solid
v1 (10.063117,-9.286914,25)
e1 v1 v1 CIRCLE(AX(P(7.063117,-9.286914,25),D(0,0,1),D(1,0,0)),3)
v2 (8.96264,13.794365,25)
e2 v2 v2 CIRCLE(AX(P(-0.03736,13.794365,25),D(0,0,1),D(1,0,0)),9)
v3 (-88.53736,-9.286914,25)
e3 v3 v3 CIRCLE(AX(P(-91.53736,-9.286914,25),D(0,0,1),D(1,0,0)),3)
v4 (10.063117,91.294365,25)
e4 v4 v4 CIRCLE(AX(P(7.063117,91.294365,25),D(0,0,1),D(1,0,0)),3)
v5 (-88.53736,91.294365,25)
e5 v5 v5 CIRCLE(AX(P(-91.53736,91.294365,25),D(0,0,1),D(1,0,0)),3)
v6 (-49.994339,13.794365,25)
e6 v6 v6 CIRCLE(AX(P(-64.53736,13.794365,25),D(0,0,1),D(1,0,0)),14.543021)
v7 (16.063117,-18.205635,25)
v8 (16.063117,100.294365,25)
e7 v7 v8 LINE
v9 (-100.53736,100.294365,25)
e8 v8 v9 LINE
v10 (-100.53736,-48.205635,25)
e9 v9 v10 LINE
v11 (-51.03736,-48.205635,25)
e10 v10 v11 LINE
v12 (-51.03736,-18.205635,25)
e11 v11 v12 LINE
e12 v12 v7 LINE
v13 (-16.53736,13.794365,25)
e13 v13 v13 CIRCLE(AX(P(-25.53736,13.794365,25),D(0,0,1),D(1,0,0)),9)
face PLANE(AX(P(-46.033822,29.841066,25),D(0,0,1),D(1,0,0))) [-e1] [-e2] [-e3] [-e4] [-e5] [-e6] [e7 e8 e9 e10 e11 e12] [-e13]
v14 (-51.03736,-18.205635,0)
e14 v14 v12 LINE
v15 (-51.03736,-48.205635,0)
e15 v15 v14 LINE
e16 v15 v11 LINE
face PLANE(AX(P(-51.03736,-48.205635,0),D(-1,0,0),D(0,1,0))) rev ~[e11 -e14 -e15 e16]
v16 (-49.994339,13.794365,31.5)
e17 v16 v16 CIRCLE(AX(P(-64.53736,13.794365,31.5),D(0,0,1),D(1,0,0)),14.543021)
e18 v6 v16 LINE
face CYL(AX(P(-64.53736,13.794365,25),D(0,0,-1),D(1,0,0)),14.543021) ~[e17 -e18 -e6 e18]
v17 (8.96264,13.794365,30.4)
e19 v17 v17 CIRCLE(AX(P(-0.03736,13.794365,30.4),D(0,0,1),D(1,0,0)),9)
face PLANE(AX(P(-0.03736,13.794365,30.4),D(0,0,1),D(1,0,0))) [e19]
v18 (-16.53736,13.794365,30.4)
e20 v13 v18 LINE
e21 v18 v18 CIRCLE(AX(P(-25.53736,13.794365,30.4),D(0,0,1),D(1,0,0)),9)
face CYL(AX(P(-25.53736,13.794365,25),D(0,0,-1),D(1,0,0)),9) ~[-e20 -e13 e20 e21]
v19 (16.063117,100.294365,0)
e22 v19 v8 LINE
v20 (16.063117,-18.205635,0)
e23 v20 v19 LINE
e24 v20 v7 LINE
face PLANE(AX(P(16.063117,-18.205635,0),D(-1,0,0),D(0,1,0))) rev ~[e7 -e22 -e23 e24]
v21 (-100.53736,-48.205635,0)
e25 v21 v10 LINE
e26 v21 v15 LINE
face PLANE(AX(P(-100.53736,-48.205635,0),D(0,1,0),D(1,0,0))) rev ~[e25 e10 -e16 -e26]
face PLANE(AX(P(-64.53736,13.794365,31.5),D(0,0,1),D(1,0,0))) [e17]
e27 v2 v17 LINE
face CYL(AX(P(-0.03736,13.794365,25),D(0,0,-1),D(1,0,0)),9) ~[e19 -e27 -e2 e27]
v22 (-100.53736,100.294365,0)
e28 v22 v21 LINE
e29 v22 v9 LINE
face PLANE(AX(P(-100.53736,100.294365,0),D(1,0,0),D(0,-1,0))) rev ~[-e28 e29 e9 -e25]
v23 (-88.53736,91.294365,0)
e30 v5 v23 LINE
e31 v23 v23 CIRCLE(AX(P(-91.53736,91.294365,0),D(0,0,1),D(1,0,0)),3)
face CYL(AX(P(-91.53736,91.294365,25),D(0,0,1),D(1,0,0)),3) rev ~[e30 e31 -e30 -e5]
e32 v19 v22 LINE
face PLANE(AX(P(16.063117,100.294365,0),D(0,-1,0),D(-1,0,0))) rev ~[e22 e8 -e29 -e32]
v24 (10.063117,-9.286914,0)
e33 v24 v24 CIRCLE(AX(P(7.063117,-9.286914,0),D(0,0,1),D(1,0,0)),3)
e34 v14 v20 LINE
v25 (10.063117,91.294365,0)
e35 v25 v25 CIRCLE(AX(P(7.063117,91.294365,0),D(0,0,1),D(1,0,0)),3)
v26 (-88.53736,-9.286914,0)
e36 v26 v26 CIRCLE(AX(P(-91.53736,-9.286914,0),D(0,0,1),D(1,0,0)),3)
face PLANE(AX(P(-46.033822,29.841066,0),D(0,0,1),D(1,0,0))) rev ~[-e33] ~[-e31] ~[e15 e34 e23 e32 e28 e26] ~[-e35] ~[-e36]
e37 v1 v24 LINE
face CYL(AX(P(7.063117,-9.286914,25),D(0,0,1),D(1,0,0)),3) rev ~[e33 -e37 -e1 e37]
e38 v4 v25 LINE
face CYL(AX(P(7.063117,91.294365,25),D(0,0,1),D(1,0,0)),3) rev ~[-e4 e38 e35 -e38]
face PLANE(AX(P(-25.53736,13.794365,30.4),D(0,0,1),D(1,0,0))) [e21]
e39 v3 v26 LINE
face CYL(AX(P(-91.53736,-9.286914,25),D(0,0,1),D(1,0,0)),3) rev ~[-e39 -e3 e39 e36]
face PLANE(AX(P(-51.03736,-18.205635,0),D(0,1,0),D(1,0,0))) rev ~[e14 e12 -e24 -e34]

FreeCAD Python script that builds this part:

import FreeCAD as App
import Part
import Sketcher

doc = App.newDocument("Part")
body = doc.addObject("PartDesign::Body", "Body")

sketch1 = body.newObject("Sketcher::SketchObject", "Sketch")
sketch1.AttachmentSupport = (doc.getObject("XY_Plane"), [""])
sketch1.MapMode = "FlatFace"
sketch1.addGeometry([
    Part.LineSegment(App.Vector(16.063117, -18.205635, 0), App.Vector(16.063117, 100.294365, 0)),
    Part.LineSegment(App.Vector(16.063117, 100.294365, 0), App.Vector(-100.53736, 100.294365, 0)),
    Part.LineSegment(App.Vector(-100.53736, 100.294365, 0), App.Vector(-100.53736, -48.205635, 0)),
    Part.LineSegment(App.Vector(-100.53736, -48.205635, 0), App.Vector(-51.03736, -48.205635, 0)),
    Part.LineSegment(App.Vector(-51.03736, -48.205635, 0), App.Vector(-51.03736, -18.205635, 0)),
    Part.LineSegment(App.Vector(-51.03736, -18.205635, 0), App.Vector(16.063117, -18.205635, 0)),
], False)
sketch1.addConstraint([
    Sketcher.Constraint("Coincident", 0, 2, 1, 1),
    Sketcher.Constraint("Coincident", 1, 2, 2, 1),
    Sketcher.Constraint("Coincident", 2, 2, 3, 1),
    Sketcher.Constraint("Coincident", 3, 2, 4, 1),
    Sketcher.Constraint("Coincident", 4, 2, 5, 1),
    Sketcher.Constraint("Coincident", 5, 2, 0, 1),
    Sketcher.Constraint("Vertical", 0),
    Sketcher.Constraint("Horizontal", 1),
    Sketcher.Constraint("Vertical", 2),
    Sketcher.Constraint("Horizontal", 3),
    Sketcher.Constraint("Vertical", 4),
    Sketcher.Constraint("Horizontal", 5),
    Sketcher.Constraint("DistanceY", 4, 1, 4, 2, 30.0),
    Sketcher.Constraint("DistanceX", 3, 1, 3, 2, 49.5),
    Sketcher.Constraint("DistanceY", 0, 1, 0, 2, 118.5),
    Sketcher.Constraint("DistanceX", 1, 2, 1, 1, 116.600477),
    Sketcher.Constraint("DistanceX", 1, 2, -1, 1, 100.53736),
    Sketcher.Constraint("DistanceY", -1, 1, 0, 2, 100.294365),
])
pad1 = body.newObject("PartDesign::Pad", "Pad")
pad1.Profile = sketch1
pad1.Length = 25

sketch2 = body.newObject("Sketcher::SketchObject", "Sketch001")
sketch2.AttachmentSupport = (doc.getObject("XY_Plane"), [""])
sketch2.MapMode = "FlatFace"
sketch2.AttachmentOffset = App.Placement(App.Vector(0, 0, 25), App.Rotation())
sketch2.addGeometry([
    Part.Circle(App.Vector(7.063117, 91.294365, 0), App.Vector(0, 0, 1), 3),
    Part.Circle(App.Vector(7.063117, -9.286914, 0), App.Vector(0, 0, 1), 3),
    Part.Circle(App.Vector(-91.53736, 91.294365, 0), App.Vector(0, 0, 1), 3),
    Part.Circle(App.Vector(-91.53736, -9.286914, 0), App.Vector(0, 0, 1), 3),
], False)
sketch2.addConstraint([
    Sketcher.Constraint("Equal", 0, 1),
    Sketcher.Constraint("Equal", 1, 2),
    Sketcher.Constraint("Equal", 2, 3),
    Sketcher.Constraint("Horizontal", 0, 3, 2, 3),
    Sketcher.Constraint("Horizontal", 1, 3, 3, 3),
    Sketcher.Constraint("Vertical", 0, 3, 1, 3),
    Sketcher.Constraint("Vertical", 2, 3, 3, 3),
    Sketcher.Constraint("Diameter", 0, 6.0),
    Sketcher.Constraint("DistanceX", 2, 3, -1, 1, 91.53736),
    Sketcher.Constraint("DistanceY", 1, 3, 0, 3, 100.581279),
    Sketcher.Constraint("DistanceX", -1, 1, 0, 3, 7.063117),
    Sketcher.Constraint("DistanceY", -1, 1, 0, 3, 91.294365),
])
pocket1 = body.newObject("PartDesign::Pocket", "Pocket")
pocket1.Profile = sketch2
pocket1.Length = 1000

sketch3 = body.newObject("Sketcher::SketchObject", "Sketch002")
sketch3.AttachmentSupport = (doc.getObject("XY_Plane"), [""])
sketch3.MapMode = "FlatFace"
sketch3.AttachmentOffset = App.Placement(App.Vector(0, 0, 25), App.Rotation())
sketch3.addGeometry(Part.Circle(App.Vector(-64.53736, 13.794365, 0), App.Vector(0, 0, 1), 14.543021), False)
sketch3.addConstraint([
    Sketcher.Constraint("Diameter", 0, 29.086042),
    Sketcher.Constraint("DistanceX", 0, 3, -1, 1, 64.53736),
    Sketcher.Constraint("DistanceY", -1, 1, 0, 3, 13.794365),
])
pad2 = body.newObject("PartDesign::Pad", "Pad001")
pad2.Profile = sketch3
pad2.Length = 6.5

sketch4 = body.newObject("Sketcher::SketchObject", "Sketch003")
sketch4.AttachmentSupport = (doc.getObject("XY_Plane"), [""])
sketch4.MapMode = "FlatFace"
sketch4.AttachmentOffset = App.Placement(App.Vector(0, 0, 25), App.Rotation())
sketch4.addGeometry([
    Part.Circle(App.Vector(-0.03736, 13.794365, 0), App.Vector(0, 0, 1), 9),
    Part.Circle(App.Vector(-25.53736, 13.794365, 0), App.Vector(0, 0, 1), 9),
], False)
sketch4.addConstraint([
    Sketcher.Constraint("Equal", 0, 1),
    Sketcher.Constraint("Horizontal", 0, 3, 1, 3),
    Sketcher.Constraint("Diameter", 0, 18.0),
    Sketcher.Constraint("DistanceX", 1, 3, 0, 3, 25.5),
    Sketcher.Constraint("DistanceX", 0, 3, -1, 1, 0.03736),
    Sketcher.Constraint("DistanceY", -1, 1, 0, 3, 13.794365),
])
pad3 = body.newObject("PartDesign::Pad", "Pad002")
pad3.Profile = sketch4
pad3.Length = 5.4

doc.recompute()
